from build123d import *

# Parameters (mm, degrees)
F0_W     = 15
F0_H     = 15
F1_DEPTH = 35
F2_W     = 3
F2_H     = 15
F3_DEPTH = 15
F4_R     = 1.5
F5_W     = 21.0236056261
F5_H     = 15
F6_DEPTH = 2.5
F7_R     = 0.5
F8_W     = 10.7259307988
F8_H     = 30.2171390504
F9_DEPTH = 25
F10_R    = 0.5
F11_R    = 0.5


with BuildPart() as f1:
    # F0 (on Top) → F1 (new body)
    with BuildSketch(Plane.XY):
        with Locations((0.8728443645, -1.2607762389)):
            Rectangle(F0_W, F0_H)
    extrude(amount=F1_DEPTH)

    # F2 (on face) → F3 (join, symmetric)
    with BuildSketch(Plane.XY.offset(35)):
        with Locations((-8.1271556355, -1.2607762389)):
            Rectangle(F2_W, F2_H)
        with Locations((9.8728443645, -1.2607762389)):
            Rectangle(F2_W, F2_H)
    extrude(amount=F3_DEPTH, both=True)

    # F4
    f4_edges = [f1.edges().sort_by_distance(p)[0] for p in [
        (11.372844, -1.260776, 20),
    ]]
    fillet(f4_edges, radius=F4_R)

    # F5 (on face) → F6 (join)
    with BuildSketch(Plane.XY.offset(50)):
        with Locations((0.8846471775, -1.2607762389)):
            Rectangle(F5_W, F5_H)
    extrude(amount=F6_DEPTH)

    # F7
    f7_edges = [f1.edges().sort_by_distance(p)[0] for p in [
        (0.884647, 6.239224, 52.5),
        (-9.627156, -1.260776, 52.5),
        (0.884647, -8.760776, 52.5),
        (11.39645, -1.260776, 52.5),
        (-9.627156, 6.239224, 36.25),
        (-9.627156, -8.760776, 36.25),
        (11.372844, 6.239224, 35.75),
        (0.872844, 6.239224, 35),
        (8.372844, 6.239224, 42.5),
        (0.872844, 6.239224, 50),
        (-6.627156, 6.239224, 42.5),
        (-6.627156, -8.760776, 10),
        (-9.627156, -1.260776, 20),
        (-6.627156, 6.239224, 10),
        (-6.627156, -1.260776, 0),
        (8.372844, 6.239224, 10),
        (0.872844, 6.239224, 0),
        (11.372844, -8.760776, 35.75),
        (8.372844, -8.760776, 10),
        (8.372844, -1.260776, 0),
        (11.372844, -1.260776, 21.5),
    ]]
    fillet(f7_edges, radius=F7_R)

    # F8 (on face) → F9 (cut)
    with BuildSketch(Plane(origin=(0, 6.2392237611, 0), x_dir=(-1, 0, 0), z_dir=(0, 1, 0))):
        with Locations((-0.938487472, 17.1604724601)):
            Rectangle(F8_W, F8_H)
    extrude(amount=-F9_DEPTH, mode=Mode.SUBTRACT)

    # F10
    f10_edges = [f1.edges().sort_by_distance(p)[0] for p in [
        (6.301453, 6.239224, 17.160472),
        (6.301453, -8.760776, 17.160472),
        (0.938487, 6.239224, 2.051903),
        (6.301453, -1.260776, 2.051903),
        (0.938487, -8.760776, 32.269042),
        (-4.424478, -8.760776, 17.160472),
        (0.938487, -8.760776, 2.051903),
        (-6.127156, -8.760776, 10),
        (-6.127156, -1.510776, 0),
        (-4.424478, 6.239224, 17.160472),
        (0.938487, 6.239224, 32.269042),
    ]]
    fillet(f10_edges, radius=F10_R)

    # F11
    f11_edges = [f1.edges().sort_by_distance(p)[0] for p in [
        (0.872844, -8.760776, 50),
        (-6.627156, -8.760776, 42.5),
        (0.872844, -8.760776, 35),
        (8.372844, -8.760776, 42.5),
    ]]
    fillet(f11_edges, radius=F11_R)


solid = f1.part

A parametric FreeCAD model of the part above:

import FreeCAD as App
import Part
import Sketcher
from FreeCAD import Vector


def edges_at(feature, points):
    """Names of the edges that pass closest to the given points."""
    edges = feature.Shape.Edges
    near = lambda p: min(range(len(edges)), key=lambda i: edges[i].distToShape(Part.Vertex(*p))[0])
    return sorted({f"Edge{near(p) + 1}" for p in points})

doc = App.newDocument("Part")
body = doc.addObject("PartDesign::Body", "Body")

sketch1 = body.newObject("Sketcher::SketchObject", "Sketch")
sketch1.AttachmentSupport = (doc.getObject("XY_Plane"), [""])
sketch1.MapMode = "FlatFace"
sketch1.addGeometry([
    Part.LineSegment(Vector(-6.627156, 6.239224, 0), Vector(-6.627156, -8.760776, 0)),
    Part.LineSegment(Vector(-6.627156, -8.760776, 0), Vector(8.372844, -8.760776, 0)),
    Part.LineSegment(Vector(8.372844, -8.760776, 0), Vector(8.372844, 6.239224, 0)),
    Part.LineSegment(Vector(8.372844, 6.239224, 0), Vector(-6.627156, 6.239224, 0)),
], False)
sketch1.addConstraint([
    Sketcher.Constraint("Coincident", 0, 2, 1, 1),
    Sketcher.Constraint("Coincident", 1, 2, 2, 1),
    Sketcher.Constraint("Coincident", 2, 2, 3, 1),
    Sketcher.Constraint("Coincident", 3, 2, 0, 1),
    Sketcher.Constraint("Vertical", 0),
    Sketcher.Constraint("Horizontal", 1),
    Sketcher.Constraint("Vertical", 2),
    Sketcher.Constraint("Horizontal", 3),
    Sketcher.Constraint("Equal", 3, 0),
    Sketcher.Constraint("DistanceX", 1, 1, 1, 2, 15.0),
    Sketcher.Constraint("DistanceX", 0, 2, -1, 1, 6.627156),
    Sketcher.Constraint("DistanceY", 0, 2, -1, 1, 8.760776),
])
pad1 = body.newObject("PartDesign::Pad", "Pad")
pad1.Profile = sketch1
pad1.Length = 35

sketch2 = body.newObject("Sketcher::SketchObject", "Sketch001")
sketch2.AttachmentSupport = (doc.getObject("XY_Plane"), [""])
sketch2.MapMode = "FlatFace"
sketch2.AttachmentOffset = App.Placement(Vector(0, 0, 35), App.Rotation())
sketch2.addGeometry([
    Part.LineSegment(Vector(-9.627156, 6.239224, 0), Vector(-9.627156, -8.760776, 0)),
    Part.LineSegment(Vector(-9.627156, -8.760776, 0), Vector(-6.627156, -8.760776, 0)),
    Part.LineSegment(Vector(-6.627156, -8.760776, 0), Vector(-6.627156, 6.239224, 0)),
    Part.LineSegment(Vector(-6.627156, 6.239224, 0), Vector(-9.627156, 6.239224, 0)),
    Part.LineSegment(Vector(8.372844, 6.239224, 0), Vector(8.372844, -8.760776, 0)),
    Part.LineSegment(Vector(8.372844, -8.760776, 0), Vector(11.372844, -8.760776, 0)),
    Part.LineSegment(Vector(11.372844, -8.760776, 0), Vector(11.372844, 6.239224, 0)),
    Part.LineSegment(Vector(11.372844, 6.239224, 0), Vector(8.372844, 6.239224, 0)),
], False)
sketch2.addConstraint([
    Sketcher.Constraint("Coincident", 0, 2, 1, 1),
    Sketcher.Constraint("Coincident", 1, 2, 2, 1),
    Sketcher.Constraint("Coincident", 2, 2, 3, 1),
    Sketcher.Constraint("Coincident", 3, 2, 0, 1),
    Sketcher.Constraint("Coincident", 4, 2, 5, 1),
    Sketcher.Constraint("Coincident", 5, 2, 6, 1),
    Sketcher.Constraint("Coincident", 6, 2, 7, 1),
    Sketcher.Constraint("Coincident", 7, 2, 4, 1),
    Sketcher.Constraint("Vertical", 0),
    Sketcher.Constraint("Horizontal", 1),
    Sketcher.Constraint("Vertical", 2),
    Sketcher.Constraint("Horizontal", 3),
    Sketcher.Constraint("Vertical", 4),
    Sketcher.Constraint("Horizontal", 5),
    Sketcher.Constraint("Vertical", 6),
    Sketcher.Constraint("Horizontal", 7),
    Sketcher.Constraint("Horizontal", 1, 2, 4, 2),
    Sketcher.Constraint("Horizontal", 3, 2, 6, 2),
    Sketcher.Constraint("Equal", 3, 5),
    Sketcher.Constraint("DistanceX", 1, 1, 1, 2, 3.0),
    Sketcher.Constraint("DistanceY", 0, 2, 0, 1, 15.0),
    Sketcher.Constraint("DistanceX", 1, 2, 4, 2, 15.0),
    Sketcher.Constraint("DistanceX", 0, 2, -1, 1, 9.627156),
    Sketcher.Constraint("DistanceY", 0, 2, -1, 1, 8.760776),
])
pad2 = body.newObject("PartDesign::Pad", "Pad001")
pad2.Profile = sketch2
pad2.Length = 30
pad2.Midplane = True
doc.recompute()

fillet = body.newObject("PartDesign::Fillet", "Fillet")
fillet.Base = (pad2, edges_at(pad2, [(11.373, -1.261, 20)]))
fillet.Radius = 1.5

sketch3 = body.newObject("Sketcher::SketchObject", "Sketch002")
sketch3.AttachmentSupport = (doc.getObject("XY_Plane"), [""])
sketch3.MapMode = "FlatFace"
sketch3.AttachmentOffset = App.Placement(Vector(0, 0, 50), App.Rotation())
sketch3.addGeometry([
    Part.LineSegment(Vector(-9.627156, 6.239224, 0), Vector(-9.627156, -8.760776, 0)),
    Part.LineSegment(Vector(-9.627156, -8.760776, 0), Vector(11.39645, -8.760776, 0)),
    Part.LineSegment(Vector(11.39645, -8.760776, 0), Vector(11.39645, 6.239224, 0)),
    Part.LineSegment(Vector(11.39645, 6.239224, 0), Vector(-9.627156, 6.239224, 0)),
], False)
sketch3.addConstraint([
    Sketcher.Constraint("Coincident", 0, 2, 1, 1),
    Sketcher.Constraint("Coincident", 1, 2, 2, 1),
    Sketcher.Constraint("Coincident", 2, 2, 3, 1),
    Sketcher.Constraint("Coincident", 3, 2, 0, 1),
    Sketcher.Constraint("Vertical", 0),
    Sketcher.Constraint("Horizontal", 1),
    Sketcher.Constraint("Vertical", 2),
    Sketcher.Constraint("Horizontal", 3),
    Sketcher.Constraint("DistanceY", 0, 2, 0, 1, 15.0),
    Sketcher.Constraint("DistanceX", 1, 1, 1, 2, 21.023606),
    Sketcher.Constraint("DistanceX", -1, 1, 1, 2, 11.39645),
    Sketcher.Constraint("DistanceY", 0, 2, -1, 1, 8.760776),
])
pad3 = body.newObject("PartDesign::Pad", "Pad002")
pad3.Profile = sketch3
pad3.Length = 2.5
doc.recompute()

fillet2 = body.newObject("PartDesign::Fillet", "Fillet001")
fillet2.Base = (pad3, edges_at(pad3, [
    (0.885, 6.239, 52.5),
    (-9.627, -1.261, 52.5),
    (0.885, -8.761, 52.5),
    (11.396, -1.261, 52.5),
    (-9.627, 6.239, 35),
    (-9.627, -8.761, 35),
    (11.373, 6.239, 35.75),
    (0.873, 6.239, 35),
    (8.373, 6.239, 42.5),
    (0.873, 6.239, 50),
    (-6.627, 6.239, 42.5),
    (-6.627, -8.761, 10),
    (-9.627, -1.261, 20),
    (-6.627, 6.239, 10),
    (-6.627, -1.261, 0),
    (8.373, 6.239, 10),
    (0.873, 6.239, 0),
    (11.373, -8.761, 35.75),
    (8.373, -8.761, 10),
    (8.373, -1.261, 0),
    (11.373, -1.261, 21.5),
]))
fillet2.Radius = 0.5

sketch4 = body.newObject("Sketcher::SketchObject", "Sketch003")
sketch4.AttachmentSupport = (doc.getObject("XZ_Plane"), [""])
sketch4.MapMode = "FlatFace"
sketch4.AttachmentOffset = App.Placement(Vector(0, 0, -6.239224), App.Rotation())
sketch4.addGeometry([
    Part.LineSegment(Vector(6.301453, 32.269042, 0), Vector(6.301453, 2.051903, 0)),
    Part.LineSegment(Vector(6.301453, 2.051903, 0), Vector(-4.424478, 2.051903, 0)),
    Part.LineSegment(Vector(-4.424478, 2.051903, 0), Vector(-4.424478, 32.269042, 0)),
    Part.LineSegment(Vector(-4.424478, 32.269042, 0), Vector(6.301453, 32.269042, 0)),
], False)
sketch4.addConstraint([
    Sketcher.Constraint("Coincident", 0, 2, 1, 1),
    Sketcher.Constraint("Coincident", 1, 2, 2, 1),
    Sketcher.Constraint("Coincident", 2, 2, 3, 1),
    Sketcher.Constraint("Coincident", 3, 2, 0, 1),
    Sketcher.Constraint("Vertical", 0),
    Sketcher.Constraint("Horizontal", 1),
    Sketcher.Constraint("Vertical", 2),
    Sketcher.Constraint("Horizontal", 3),
    Sketcher.Constraint("DistanceX", 1, 2, 1, 1, 10.725931),
    Sketcher.Constraint("DistanceY", 0, 2, 0, 1, 30.217139),
    Sketcher.Constraint("DistanceY", -1, 1, 2, 2, 32.269042),
    Sketcher.Constraint("DistanceX", -1, 1, 0, 2, 6.301453),
])
pocket1 = body.newObject("PartDesign::Pocket", "Pocket")
pocket1.Profile = sketch4
pocket1.Length = 25
pocket1.Reversed = True
doc.recompute()

fillet3 = body.newObject("PartDesign::Fillet", "Fillet002")
fillet3.Base = (pocket1, edges_at(pocket1, [
    (6.301, 6.239, 17.16),
    (6.301, -8.761, 17.16),
    (0.938, 6.239, 2.052),
    (6.301, -1.261, 2.052),
    (0.938, -8.761, 32.269),
    (-4.424, -8.761, 17.16),
    (0.938, -8.761, 2.052),
    (-6.127, -8.761, 10),
    (-6.127, -1.511, 0),
    (-4.424, 6.239, 17.16),
    (0.938, 6.239, 32.269),
]))
fillet3.Radius = 0.5
doc.recompute()

fillet4 = body.newObject("PartDesign::Fillet", "Fillet003")
fillet4.Base = (fillet3, edges_at(fillet3, [
    (0.873, -8.761, 50),
    (-6.627, -8.761, 42.5),
    (0.873, -8.761, 35),
    (8.373, -8.761, 42.5),
]))
fillet4.Radius = 0.5

doc.recompute()
